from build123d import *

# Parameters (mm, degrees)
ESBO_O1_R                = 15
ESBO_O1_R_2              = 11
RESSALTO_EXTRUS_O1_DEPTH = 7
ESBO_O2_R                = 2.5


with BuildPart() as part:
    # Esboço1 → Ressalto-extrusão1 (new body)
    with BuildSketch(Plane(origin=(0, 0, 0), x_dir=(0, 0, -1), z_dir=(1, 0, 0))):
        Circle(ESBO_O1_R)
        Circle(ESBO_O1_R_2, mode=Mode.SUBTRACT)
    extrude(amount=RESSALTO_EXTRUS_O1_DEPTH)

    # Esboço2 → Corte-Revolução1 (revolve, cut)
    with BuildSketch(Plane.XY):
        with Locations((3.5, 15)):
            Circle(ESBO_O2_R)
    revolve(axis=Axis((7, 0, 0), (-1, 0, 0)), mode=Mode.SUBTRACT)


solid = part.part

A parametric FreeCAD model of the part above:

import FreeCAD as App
import Part
import Sketcher
from FreeCAD import Vector

doc = App.newDocument("Part")
params = doc.addObject("Spreadsheet::Sheet", "Params")
for row, (alias, value) in enumerate([
    ("sketch1_diameter", "30 mm"),
    ("sketch1_diameter2", "22 mm"),
    ("pad1_length", "7 mm"),
    ("sketch2_diameter", "5 mm"),
    ("groove_angle", "360 deg"),
], start=1):
    params.set(f"A{row}", alias)
    params.set(f"B{row}", "=" + value)
    params.setAlias(f"B{row}", alias)

body = doc.addObject("PartDesign::Body", "Body")

# Sketch on YZ plane
sketch1 = body.newObject("Sketcher::SketchObject", "Sketch")
sketch1.AttachmentSupport = (doc.getObject("YZ_Plane"), [""])
sketch1.MapMode = "FlatFace"
sketch1.addGeometry(Part.Circle(Vector(0, 0, 0), Vector(0, 0, 1), 15), False)
sketch1.addGeometry(Part.Circle(Vector(0, 0, 0), Vector(0, 0, 1), 11), False)
sketch1.addConstraint(Sketcher.Constraint("Coincident", 0, 3, -1, 1))
sketch1.addConstraint(Sketcher.Constraint("Coincident", 1, 3, -1, 1))
sketch1.addConstraint(Sketcher.Constraint("Diameter", 0, 30.0))
sketch1.addConstraint(Sketcher.Constraint("Diameter", 1, 22.0))
sketch1.setExpression("Constraints[2]", "Params.sketch1_diameter")
sketch1.setExpression("Constraints[3]", "Params.sketch1_diameter2")
pad1 = body.newObject("PartDesign::Pad", "Pad")
pad1.Profile = sketch1
pad1.setExpression("Length", "Params.pad1_length")

# Sketch on XY plane
sketch2 = body.newObject("Sketcher::SketchObject", "Sketch001")
sketch2.AttachmentSupport = (doc.getObject("XY_Plane"), [""])
sketch2.MapMode = "FlatFace"
sketch2.addGeometry(Part.Circle(Vector(3.5, 15, 0), Vector(0, 0, 1), 2.5), False)
sketch2.addConstraint(Sketcher.Constraint("Diameter", 0, 5.0))
sketch2.addConstraint(Sketcher.Constraint("DistanceY", -1, 1, 0, 3, 15.0))
sketch2.addConstraint(Sketcher.Constraint("DistanceX", -1, 1, 0, 3, 3.5))
sketch2.setExpression("Constraints[0]", "Params.sketch2_diameter")
groove = body.newObject("PartDesign::Groove", "Groove")
groove.Profile = sketch2
groove.ReferenceAxis = (sketch2, ["H_Axis"])
groove.setExpression("Angle", "Params.groove_angle")

doc.recompute()
